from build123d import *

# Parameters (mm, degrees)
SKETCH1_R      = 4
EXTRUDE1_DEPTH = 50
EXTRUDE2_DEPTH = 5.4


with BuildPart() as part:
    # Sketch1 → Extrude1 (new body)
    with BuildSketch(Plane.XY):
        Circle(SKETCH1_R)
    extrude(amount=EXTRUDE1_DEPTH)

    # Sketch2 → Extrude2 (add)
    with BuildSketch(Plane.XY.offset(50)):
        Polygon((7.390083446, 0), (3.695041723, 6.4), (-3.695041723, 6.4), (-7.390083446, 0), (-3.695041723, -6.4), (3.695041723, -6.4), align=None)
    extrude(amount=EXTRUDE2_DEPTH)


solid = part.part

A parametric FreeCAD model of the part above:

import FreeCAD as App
import Part
import Sketcher

V = App.Vector
Q = App.Units.Quantity

doc = App.newDocument("Part")
body = doc.addObject("PartDesign::Body", "Body")

# Sketch on XY plane
sketch1 = body.newObject("Sketcher::SketchObject", "Sketch")
sketch1.AttachmentSupport = (doc.getObject("XY_Plane"), [""])
sketch1.MapMode = "FlatFace"
sketch1.addGeometry(Part.Circle(V(0, 0, 0), V(0, 0, 1), 4), False)
sketch1.addConstraint([
    Sketcher.Constraint("Coincident", 0, 3, -1, 1),
    Sketcher.Constraint("Diameter", 0, Q("8 mm")),
])
pad1 = body.newObject("PartDesign::Pad", "Pad")
pad1.Profile = sketch1
pad1.Length = 50

# Sketch on XY plane
sketch2 = body.newObject("Sketcher::SketchObject", "Sketch001")
sketch2.AttachmentSupport = (doc.getObject("XY_Plane"), [""])
sketch2.MapMode = "FlatFace"
sketch2.AttachmentOffset = App.Placement(V(0, 0, 50), App.Rotation())
sketch2.addGeometry([
    Part.LineSegment(V(7, 0, 0), V(4, 6, 0)),  # 0
    Part.LineSegment(V(4, 6, 0), V(-4, 6, 0)),  # 1
    Part.LineSegment(V(-4, 6, 0), V(-7, 0, 0)),  # 2
    Part.LineSegment(V(-7, 0, 0), V(-4, -6, 0)),  # 3
    Part.LineSegment(V(-4, -6, 0), V(4, -6, 0)),  # 4
    Part.LineSegment(V(4, -6, 0), V(7, 0, 0)),  # 5
], False)
sketch2.addConstraint([
    Sketcher.Constraint("Coincident", 0, 2, 1, 1),
    Sketcher.Constraint("Coincident", 1, 2, 2, 1),
    Sketcher.Constraint("Coincident", 2, 2, 3, 1),
    Sketcher.Constraint("Coincident", 3, 2, 4, 1),
    Sketcher.Constraint("Coincident", 4, 2, 5, 1),
    Sketcher.Constraint("Coincident", 5, 2, 0, 1),
    Sketcher.Constraint("Horizontal", 1),
    Sketcher.Constraint("Horizontal", 4),
    Sketcher.Constraint("Symmetric", 0, 2, 3, 2, -1, 1),
    Sketcher.Constraint("Symmetric", 2, 2, 5, 2, -1, 1),
    Sketcher.Constraint("PointOnObject", 2, 2, -1),
    Sketcher.Constraint("Parallel", 2, 5),
    Sketcher.Constraint("Vertical", 1, 2, 3, 2),
    Sketcher.Constraint("Angle", 0, Q("120 deg")),
    Sketcher.Constraint("DistanceY", -1, 1, 0, 2, Q("6.4 mm")),
    Sketcher.Constraint("DistanceX", 1, 2, 1, 1, Q("7.390083 mm")),
])
pad2 = body.newObject("PartDesign::Pad", "Pad001")
pad2.Profile = sketch2
pad2.Length = 5.4

doc.recompute()
